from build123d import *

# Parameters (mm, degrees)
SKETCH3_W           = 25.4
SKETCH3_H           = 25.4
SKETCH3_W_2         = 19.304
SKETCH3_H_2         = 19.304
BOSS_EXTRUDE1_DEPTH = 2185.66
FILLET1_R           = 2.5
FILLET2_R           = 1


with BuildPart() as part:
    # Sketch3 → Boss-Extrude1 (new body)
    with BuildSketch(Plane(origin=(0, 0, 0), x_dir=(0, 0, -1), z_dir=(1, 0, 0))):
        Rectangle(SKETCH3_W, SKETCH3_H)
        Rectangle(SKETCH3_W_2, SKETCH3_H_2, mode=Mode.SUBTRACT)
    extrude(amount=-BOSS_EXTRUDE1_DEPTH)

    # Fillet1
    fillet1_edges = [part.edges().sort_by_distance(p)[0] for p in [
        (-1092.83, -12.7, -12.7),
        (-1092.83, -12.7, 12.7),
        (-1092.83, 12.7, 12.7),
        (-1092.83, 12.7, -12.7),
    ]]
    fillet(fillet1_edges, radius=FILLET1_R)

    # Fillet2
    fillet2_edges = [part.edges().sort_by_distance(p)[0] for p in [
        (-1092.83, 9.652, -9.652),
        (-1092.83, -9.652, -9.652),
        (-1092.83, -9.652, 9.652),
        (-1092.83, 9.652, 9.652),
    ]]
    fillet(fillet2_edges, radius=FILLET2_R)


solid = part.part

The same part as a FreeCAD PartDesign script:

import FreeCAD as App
import Part
import Sketcher
from FreeCAD import Vector


def edges_at(feature, points):
    """Names of the edges that pass closest to the given points."""
    edges = feature.Shape.Edges
    near = lambda p: min(range(len(edges)), key=lambda i: edges[i].distToShape(Part.Vertex(*p))[0])
    return sorted({f"Edge{near(p) + 1}" for p in points})


def add_polygon(sketch, points):
    """Adds a closed chain of lines whose ends are joined by coincident constraints."""
    first, n = sketch.GeometryCount, len(points)
    for a, b in zip(points, points[1:] + points[:1]):
        sketch.addGeometry(Part.LineSegment(App.Vector(*a, 0), App.Vector(*b, 0)), False)
    for i in range(n):
        sketch.addConstraint(Sketcher.Constraint("Coincident", first + i, 2, first + (i + 1) % n, 1))

doc = App.newDocument("Part")
body = doc.addObject("PartDesign::Body", "Body")

sketch1 = body.newObject("Sketcher::SketchObject", "Sketch")
sketch1.AttachmentSupport = (doc.getObject("YZ_Plane"), [""])
sketch1.MapMode = "FlatFace"
add_polygon(sketch1, [(12.7, 12.7), (-12.7, 12.7), (-12.7, -12.7), (12.7, -12.7)])
add_polygon(sketch1, [(-9.652, -9.652), (-9.652, 9.652), (9.652, 9.652), (9.652, -9.652)])
sketch1.addConstraint([
    Sketcher.Constraint("Horizontal", 0),
    Sketcher.Constraint("Vertical", 1),
    Sketcher.Constraint("Horizontal", 2),
    Sketcher.Constraint("Vertical", 3),
    Sketcher.Constraint("Vertical", 4),
    Sketcher.Constraint("Horizontal", 5),
    Sketcher.Constraint("Vertical", 6),
    Sketcher.Constraint("Horizontal", 7),
    Sketcher.Constraint("Symmetric", 0, 2, 2, 2, -1, 1),
    Sketcher.Constraint("Symmetric", 4, 2, 6, 2, -1, 1),
    Sketcher.Constraint("Equal", 2, 1),
    Sketcher.Constraint("Equal", 7, 4),
    Sketcher.Constraint("DistanceX", 0, 2, 0, 1, 25.4),
    Sketcher.Constraint("DistanceX", 5, 1, 5, 2, 19.304),
])
pad1 = body.newObject("PartDesign::Pad", "Pad")
pad1.Profile = sketch1
pad1.Length = 2185.66
pad1.Reversed = True
doc.recompute()

fillet = body.newObject("PartDesign::Fillet", "Fillet")
fillet.Base = (pad1, edges_at(pad1, [
    (-1092.83, -12.7, -12.7),
    (-1092.83, -12.7, 12.7),
    (-1092.83, 12.7, 12.7),
    (-1092.83, 12.7, -12.7),
]))
fillet.Radius = 2.5
doc.recompute()

fillet2 = body.newObject("PartDesign::Fillet", "Fillet001")
fillet2.Base = (fillet, edges_at(fillet, [
    (-1092.83, 9.652, -9.652),
    (-1092.83, -9.652, -9.652),
    (-1092.83, -9.652, 9.652),
    (-1092.83, 9.652, 9.652),
]))
fillet2.Radius = 1

doc.recompute()
